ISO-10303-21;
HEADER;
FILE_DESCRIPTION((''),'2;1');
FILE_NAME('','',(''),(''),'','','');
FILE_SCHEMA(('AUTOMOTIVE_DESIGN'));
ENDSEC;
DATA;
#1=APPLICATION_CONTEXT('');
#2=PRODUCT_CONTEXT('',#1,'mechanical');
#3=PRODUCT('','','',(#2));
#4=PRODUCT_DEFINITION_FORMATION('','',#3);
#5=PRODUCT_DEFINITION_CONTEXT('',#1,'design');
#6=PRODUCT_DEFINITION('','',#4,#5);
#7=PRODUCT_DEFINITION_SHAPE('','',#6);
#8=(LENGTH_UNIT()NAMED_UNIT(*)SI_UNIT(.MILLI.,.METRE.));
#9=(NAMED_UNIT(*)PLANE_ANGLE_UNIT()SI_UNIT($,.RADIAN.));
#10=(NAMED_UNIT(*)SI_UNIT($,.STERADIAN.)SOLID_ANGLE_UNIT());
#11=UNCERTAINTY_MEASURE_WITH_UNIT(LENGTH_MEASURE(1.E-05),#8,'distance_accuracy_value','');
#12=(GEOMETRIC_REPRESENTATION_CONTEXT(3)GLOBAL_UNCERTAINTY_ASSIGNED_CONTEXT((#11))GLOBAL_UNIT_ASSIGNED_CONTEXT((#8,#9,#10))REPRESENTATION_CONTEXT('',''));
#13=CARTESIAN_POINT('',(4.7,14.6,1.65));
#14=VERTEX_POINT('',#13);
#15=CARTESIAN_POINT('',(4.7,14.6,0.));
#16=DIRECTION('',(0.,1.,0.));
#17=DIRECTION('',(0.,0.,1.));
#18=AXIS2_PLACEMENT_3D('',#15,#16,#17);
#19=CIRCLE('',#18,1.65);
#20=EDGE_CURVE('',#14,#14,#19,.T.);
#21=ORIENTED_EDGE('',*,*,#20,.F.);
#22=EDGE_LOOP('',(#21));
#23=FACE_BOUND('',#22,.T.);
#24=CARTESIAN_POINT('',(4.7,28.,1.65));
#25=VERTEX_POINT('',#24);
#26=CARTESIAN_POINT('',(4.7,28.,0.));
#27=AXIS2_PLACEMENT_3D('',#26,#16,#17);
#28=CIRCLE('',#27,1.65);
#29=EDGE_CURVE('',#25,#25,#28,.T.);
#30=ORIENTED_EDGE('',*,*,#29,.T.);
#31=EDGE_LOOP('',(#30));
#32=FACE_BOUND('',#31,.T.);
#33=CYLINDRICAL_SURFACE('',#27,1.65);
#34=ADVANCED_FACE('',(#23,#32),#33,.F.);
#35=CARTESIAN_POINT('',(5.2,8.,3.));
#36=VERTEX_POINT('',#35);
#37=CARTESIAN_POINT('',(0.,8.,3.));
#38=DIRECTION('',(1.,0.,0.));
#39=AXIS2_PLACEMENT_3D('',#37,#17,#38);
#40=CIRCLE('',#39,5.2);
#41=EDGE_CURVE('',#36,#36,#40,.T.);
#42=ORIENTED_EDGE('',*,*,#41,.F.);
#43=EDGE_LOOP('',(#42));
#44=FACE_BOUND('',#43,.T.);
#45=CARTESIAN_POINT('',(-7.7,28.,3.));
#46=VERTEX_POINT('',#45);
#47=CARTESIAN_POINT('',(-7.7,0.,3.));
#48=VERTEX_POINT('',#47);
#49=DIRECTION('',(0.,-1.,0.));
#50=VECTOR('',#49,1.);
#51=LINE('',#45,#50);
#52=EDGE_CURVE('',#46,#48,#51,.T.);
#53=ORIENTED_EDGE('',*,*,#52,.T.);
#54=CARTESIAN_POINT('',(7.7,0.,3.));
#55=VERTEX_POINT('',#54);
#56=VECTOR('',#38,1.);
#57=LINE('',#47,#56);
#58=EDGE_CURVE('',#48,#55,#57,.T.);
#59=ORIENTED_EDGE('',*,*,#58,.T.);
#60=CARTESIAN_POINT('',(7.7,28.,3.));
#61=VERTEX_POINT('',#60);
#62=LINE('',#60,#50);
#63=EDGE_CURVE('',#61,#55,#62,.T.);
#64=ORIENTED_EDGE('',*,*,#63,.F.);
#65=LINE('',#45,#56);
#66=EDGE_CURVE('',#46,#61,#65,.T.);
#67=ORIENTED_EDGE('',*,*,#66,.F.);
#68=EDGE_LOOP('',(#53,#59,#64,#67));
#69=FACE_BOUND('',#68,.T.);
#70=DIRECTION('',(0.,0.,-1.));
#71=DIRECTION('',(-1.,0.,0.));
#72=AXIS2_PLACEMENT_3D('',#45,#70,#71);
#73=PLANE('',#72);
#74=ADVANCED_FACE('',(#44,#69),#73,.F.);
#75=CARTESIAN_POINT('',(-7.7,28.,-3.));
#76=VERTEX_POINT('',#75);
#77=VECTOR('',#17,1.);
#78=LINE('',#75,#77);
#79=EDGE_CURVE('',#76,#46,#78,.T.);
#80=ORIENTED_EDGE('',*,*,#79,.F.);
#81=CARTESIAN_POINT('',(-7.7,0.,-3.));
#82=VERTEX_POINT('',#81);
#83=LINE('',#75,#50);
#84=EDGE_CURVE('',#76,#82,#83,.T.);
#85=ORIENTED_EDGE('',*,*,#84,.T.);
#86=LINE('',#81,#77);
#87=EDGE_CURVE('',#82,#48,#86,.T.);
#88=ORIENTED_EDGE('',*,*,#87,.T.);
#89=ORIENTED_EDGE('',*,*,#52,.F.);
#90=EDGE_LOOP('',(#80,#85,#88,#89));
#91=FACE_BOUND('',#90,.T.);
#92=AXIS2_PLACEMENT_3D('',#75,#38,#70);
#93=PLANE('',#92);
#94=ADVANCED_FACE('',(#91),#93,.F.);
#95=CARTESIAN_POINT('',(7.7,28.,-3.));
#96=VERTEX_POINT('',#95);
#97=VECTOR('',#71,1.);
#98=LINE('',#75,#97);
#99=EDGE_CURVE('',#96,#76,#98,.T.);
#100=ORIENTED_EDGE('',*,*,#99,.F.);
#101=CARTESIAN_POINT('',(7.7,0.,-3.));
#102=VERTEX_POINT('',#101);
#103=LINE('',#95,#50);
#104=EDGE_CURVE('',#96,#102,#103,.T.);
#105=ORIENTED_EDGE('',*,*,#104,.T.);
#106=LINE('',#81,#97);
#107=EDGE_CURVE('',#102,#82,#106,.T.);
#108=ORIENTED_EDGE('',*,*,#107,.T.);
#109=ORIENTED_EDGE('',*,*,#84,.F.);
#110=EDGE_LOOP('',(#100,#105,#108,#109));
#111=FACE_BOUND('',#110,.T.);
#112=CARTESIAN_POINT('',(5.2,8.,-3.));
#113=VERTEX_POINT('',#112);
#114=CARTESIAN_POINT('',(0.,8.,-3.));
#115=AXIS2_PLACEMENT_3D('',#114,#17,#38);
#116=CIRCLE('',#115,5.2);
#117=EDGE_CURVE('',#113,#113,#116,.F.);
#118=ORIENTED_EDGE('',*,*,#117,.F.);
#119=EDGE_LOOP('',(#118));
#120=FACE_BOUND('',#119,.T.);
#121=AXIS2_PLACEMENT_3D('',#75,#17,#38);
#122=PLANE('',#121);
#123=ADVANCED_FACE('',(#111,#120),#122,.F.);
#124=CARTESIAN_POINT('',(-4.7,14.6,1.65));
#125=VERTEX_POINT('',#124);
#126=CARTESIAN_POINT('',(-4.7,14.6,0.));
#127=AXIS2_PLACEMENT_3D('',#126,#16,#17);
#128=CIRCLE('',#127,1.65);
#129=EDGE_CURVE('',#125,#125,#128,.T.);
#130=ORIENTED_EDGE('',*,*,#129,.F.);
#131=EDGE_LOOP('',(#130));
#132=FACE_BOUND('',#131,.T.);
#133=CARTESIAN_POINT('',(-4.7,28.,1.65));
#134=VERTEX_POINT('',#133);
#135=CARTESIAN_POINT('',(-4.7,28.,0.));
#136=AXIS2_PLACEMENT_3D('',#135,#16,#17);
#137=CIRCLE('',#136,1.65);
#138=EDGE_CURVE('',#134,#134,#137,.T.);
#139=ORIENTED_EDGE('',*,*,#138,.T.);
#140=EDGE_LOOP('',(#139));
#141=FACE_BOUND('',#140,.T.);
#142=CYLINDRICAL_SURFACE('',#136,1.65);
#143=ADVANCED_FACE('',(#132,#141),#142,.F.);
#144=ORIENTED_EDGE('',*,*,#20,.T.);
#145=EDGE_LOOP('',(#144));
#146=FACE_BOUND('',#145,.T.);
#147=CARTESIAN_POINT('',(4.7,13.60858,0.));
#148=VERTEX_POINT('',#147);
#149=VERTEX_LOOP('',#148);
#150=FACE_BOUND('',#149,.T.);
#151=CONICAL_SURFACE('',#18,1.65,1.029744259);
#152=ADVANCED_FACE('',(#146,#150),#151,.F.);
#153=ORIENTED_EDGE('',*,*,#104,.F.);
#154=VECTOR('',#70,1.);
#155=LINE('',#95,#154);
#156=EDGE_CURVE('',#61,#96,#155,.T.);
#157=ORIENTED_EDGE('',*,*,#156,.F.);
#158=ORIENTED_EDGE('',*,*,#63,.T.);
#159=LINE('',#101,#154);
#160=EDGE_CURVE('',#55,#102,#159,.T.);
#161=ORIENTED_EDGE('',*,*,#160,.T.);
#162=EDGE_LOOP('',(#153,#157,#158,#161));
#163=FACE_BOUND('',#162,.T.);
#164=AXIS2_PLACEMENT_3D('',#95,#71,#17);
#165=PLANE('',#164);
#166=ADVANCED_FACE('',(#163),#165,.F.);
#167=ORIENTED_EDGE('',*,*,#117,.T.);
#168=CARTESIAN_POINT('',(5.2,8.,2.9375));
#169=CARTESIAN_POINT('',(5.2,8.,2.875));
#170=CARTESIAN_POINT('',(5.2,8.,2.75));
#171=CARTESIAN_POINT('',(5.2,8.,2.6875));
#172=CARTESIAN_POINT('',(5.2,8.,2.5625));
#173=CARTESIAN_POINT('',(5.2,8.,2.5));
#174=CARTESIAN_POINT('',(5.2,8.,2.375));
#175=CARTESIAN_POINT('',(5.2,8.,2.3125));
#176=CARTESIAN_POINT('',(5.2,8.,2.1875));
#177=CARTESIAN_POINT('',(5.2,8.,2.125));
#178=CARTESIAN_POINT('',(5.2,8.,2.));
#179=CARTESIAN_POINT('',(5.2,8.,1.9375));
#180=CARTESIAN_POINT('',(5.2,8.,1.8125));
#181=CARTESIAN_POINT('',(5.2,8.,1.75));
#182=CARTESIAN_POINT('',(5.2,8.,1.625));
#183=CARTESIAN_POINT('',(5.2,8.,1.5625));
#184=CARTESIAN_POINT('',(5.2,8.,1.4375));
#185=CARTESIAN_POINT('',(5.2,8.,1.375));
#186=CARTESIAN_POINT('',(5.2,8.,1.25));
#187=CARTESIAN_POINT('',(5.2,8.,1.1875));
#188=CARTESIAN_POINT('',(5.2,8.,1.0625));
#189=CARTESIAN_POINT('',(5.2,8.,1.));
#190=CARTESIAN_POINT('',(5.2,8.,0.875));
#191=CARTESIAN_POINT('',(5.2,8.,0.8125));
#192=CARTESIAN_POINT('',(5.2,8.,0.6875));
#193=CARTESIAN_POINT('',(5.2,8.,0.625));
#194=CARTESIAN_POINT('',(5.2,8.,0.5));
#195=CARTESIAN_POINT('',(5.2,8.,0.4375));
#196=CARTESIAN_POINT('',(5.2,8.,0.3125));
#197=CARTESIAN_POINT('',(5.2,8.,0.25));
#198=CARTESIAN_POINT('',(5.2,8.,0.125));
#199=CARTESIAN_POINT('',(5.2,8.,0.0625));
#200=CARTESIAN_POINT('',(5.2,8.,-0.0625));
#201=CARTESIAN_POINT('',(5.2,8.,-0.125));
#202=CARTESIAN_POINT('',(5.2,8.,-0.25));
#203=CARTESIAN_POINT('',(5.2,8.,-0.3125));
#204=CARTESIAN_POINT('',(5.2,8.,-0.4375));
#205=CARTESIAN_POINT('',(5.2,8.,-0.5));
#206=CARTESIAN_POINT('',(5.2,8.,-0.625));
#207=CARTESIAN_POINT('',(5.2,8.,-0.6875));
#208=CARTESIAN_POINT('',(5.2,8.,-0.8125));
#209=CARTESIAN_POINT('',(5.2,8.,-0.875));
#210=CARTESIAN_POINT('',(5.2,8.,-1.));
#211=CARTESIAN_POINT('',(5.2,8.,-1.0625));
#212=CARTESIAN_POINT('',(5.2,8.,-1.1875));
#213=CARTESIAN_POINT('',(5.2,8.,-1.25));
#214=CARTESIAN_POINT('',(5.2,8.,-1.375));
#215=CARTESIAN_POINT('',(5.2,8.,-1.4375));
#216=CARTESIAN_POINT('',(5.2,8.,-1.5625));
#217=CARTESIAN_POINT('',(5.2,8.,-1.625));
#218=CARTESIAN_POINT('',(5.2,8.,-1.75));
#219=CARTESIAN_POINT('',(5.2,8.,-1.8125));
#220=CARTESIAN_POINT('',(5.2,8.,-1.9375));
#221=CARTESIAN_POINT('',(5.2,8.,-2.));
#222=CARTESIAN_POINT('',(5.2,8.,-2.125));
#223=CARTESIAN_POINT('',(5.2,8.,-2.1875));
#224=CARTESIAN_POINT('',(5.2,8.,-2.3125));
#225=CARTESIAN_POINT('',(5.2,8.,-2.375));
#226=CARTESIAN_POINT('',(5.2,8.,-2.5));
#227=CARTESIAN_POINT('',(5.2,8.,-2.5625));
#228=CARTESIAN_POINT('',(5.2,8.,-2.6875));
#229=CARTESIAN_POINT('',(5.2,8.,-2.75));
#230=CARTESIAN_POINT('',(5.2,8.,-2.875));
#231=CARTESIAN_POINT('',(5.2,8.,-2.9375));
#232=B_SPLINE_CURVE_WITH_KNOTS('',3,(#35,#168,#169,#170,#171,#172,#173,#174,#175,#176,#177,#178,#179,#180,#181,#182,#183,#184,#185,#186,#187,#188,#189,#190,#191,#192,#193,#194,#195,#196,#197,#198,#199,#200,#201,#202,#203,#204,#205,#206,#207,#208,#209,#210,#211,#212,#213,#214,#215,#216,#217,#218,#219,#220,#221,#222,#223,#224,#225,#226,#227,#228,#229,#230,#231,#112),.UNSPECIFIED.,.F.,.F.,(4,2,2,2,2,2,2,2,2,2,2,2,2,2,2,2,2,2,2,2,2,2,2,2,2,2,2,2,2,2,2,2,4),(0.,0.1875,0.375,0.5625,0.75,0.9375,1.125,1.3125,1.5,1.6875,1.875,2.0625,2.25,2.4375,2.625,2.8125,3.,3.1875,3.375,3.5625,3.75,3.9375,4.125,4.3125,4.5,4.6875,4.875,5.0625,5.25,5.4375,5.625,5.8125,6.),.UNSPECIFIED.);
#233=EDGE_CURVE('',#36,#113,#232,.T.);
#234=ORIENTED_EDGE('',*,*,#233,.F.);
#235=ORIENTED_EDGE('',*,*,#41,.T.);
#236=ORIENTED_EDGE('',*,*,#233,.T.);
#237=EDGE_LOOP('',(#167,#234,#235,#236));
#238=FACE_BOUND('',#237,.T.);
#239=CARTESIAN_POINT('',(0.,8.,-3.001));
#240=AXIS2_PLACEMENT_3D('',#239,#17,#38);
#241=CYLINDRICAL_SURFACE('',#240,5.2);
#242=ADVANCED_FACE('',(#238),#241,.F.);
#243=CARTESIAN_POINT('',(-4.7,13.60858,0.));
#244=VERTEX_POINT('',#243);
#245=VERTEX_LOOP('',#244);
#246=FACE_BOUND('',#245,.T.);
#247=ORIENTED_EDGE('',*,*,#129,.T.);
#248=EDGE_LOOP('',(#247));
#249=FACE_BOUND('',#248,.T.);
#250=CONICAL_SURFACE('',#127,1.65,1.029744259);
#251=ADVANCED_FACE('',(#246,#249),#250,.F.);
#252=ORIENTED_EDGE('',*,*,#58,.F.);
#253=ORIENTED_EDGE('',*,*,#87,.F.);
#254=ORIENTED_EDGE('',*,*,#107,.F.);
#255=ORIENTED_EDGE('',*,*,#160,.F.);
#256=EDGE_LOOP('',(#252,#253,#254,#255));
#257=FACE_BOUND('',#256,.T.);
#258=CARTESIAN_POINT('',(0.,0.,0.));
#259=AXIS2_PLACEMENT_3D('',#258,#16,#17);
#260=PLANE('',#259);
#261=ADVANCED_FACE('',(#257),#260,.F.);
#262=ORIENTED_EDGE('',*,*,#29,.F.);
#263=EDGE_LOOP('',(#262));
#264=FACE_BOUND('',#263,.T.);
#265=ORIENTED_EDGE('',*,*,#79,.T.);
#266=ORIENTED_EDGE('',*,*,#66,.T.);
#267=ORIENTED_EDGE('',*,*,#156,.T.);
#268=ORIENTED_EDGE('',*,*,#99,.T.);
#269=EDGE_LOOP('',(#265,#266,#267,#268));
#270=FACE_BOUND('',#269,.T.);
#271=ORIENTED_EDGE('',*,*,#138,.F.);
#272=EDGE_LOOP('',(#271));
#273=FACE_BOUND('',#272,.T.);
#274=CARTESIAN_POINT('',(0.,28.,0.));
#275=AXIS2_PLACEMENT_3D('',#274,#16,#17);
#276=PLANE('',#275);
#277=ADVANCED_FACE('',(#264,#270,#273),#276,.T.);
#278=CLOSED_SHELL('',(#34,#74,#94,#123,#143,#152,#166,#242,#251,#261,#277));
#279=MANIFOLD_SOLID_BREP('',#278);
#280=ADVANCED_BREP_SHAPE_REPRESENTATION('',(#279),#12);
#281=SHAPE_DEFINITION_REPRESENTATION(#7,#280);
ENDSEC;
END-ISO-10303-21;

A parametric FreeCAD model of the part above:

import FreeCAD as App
import Part
import Sketcher
from FreeCAD import Vector

doc = App.newDocument("Part")
body = doc.addObject("PartDesign::Body", "Body")

# Sketch on XZ plane
sketch1 = body.newObject("Sketcher::SketchObject", "Sketch")
sketch1.AttachmentSupport = (doc.getObject("XZ_Plane"), [""])
sketch1.MapMode = "FlatFace"
sketch1.addGeometry([
    Part.LineSegment(Vector(-7.7, -3, 0), Vector(-7.7, 3, 0)),
    Part.LineSegment(Vector(-7.7, 3, 0), Vector(7.7, 3, 0)),
    Part.LineSegment(Vector(7.7, 3, 0), Vector(7.7, -3, 0)),
    Part.LineSegment(Vector(7.7, -3, 0), Vector(-7.7, -3, 0)),
], False)
sketch1.addConstraint([
    Sketcher.Constraint("Coincident", 0, 2, 1, 1),
    Sketcher.Constraint("Coincident", 1, 2, 2, 1),
    Sketcher.Constraint("Coincident", 2, 2, 3, 1),
    Sketcher.Constraint("Coincident", 3, 2, 0, 1),
    Sketcher.Constraint("Vertical", 0),
    Sketcher.Constraint("Horizontal", 1),
    Sketcher.Constraint("Vertical", 2),
    Sketcher.Constraint("Horizontal", 3),
    Sketcher.Constraint("Symmetric", 0, 2, 2, 2, -1, 1),
    Sketcher.Constraint("DistanceY", 0, 1, 0, 2, 6.0),
    Sketcher.Constraint("DistanceX", 1, 1, 1, 2, 15.4),
])
pad1 = body.newObject("PartDesign::Pad", "Pad")
pad1.Profile = sketch1
pad1.Length = 28
pad1.Reversed = True

# Sketch on XZ plane
sketch2 = body.newObject("Sketcher::SketchObject", "Sketch001")
sketch2.AttachmentSupport = (doc.getObject("XZ_Plane"), [""])
sketch2.MapMode = "FlatFace"
sketch2.AttachmentOffset = App.Placement(Vector(0, 0, -28), App.Rotation())
sketch2.addGeometry([
    Part.Circle(Vector(-4.7, 0, 0), Vector(0, 0, 1), 1.65),
    Part.Circle(Vector(4.7, 0, 0), Vector(0, 0, 1), 1.65),
], False)
sketch2.addConstraint([
    Sketcher.Constraint("Equal", 0, 1),
    Sketcher.Constraint("Symmetric", 0, 3, 1, 3, -1, 1),
    Sketcher.Constraint("PointOnObject", 0, 3, -1),
    Sketcher.Constraint("Diameter", 0, 3.3),
    Sketcher.Constraint("DistanceX", 0, 3, -1, 1, 4.7),
])
doc.recompute()
hole = body.newObject("PartDesign::Hole", "Hole")
hole.Profile = sketch2
hole.ThreadType = "None"
hole.Diameter = 3.3
hole.DepthType = "Dimension"
hole.Depth = 13.4
hole.DrillPoint = "Angled"
hole.DrillPointAngle = 118
hole.Reversed = True

# Sketch on XY plane
sketch3 = body.newObject("Sketcher::SketchObject", "Sketch002")
sketch3.AttachmentSupport = (doc.getObject("XY_Plane"), [""])
sketch3.MapMode = "FlatFace"
sketch3.AttachmentOffset = App.Placement(Vector(0, 0, 3), App.Rotation())
sketch3.addGeometry(Part.Circle(Vector(0, 8, 0), Vector(0, 0, 1), 5.2), False)
sketch3.addConstraint([
    Sketcher.Constraint("PointOnObject", 0, 3, -2),
    Sketcher.Constraint("Diameter", 0, 10.4),
    Sketcher.Constraint("DistanceY", -1, 1, 0, 3, 8.0),
])
pocket1 = body.newObject("PartDesign::Pocket", "Pocket")
pocket1.Profile = sketch3
pocket1.Type = "UpToFirst"

doc.recompute()
